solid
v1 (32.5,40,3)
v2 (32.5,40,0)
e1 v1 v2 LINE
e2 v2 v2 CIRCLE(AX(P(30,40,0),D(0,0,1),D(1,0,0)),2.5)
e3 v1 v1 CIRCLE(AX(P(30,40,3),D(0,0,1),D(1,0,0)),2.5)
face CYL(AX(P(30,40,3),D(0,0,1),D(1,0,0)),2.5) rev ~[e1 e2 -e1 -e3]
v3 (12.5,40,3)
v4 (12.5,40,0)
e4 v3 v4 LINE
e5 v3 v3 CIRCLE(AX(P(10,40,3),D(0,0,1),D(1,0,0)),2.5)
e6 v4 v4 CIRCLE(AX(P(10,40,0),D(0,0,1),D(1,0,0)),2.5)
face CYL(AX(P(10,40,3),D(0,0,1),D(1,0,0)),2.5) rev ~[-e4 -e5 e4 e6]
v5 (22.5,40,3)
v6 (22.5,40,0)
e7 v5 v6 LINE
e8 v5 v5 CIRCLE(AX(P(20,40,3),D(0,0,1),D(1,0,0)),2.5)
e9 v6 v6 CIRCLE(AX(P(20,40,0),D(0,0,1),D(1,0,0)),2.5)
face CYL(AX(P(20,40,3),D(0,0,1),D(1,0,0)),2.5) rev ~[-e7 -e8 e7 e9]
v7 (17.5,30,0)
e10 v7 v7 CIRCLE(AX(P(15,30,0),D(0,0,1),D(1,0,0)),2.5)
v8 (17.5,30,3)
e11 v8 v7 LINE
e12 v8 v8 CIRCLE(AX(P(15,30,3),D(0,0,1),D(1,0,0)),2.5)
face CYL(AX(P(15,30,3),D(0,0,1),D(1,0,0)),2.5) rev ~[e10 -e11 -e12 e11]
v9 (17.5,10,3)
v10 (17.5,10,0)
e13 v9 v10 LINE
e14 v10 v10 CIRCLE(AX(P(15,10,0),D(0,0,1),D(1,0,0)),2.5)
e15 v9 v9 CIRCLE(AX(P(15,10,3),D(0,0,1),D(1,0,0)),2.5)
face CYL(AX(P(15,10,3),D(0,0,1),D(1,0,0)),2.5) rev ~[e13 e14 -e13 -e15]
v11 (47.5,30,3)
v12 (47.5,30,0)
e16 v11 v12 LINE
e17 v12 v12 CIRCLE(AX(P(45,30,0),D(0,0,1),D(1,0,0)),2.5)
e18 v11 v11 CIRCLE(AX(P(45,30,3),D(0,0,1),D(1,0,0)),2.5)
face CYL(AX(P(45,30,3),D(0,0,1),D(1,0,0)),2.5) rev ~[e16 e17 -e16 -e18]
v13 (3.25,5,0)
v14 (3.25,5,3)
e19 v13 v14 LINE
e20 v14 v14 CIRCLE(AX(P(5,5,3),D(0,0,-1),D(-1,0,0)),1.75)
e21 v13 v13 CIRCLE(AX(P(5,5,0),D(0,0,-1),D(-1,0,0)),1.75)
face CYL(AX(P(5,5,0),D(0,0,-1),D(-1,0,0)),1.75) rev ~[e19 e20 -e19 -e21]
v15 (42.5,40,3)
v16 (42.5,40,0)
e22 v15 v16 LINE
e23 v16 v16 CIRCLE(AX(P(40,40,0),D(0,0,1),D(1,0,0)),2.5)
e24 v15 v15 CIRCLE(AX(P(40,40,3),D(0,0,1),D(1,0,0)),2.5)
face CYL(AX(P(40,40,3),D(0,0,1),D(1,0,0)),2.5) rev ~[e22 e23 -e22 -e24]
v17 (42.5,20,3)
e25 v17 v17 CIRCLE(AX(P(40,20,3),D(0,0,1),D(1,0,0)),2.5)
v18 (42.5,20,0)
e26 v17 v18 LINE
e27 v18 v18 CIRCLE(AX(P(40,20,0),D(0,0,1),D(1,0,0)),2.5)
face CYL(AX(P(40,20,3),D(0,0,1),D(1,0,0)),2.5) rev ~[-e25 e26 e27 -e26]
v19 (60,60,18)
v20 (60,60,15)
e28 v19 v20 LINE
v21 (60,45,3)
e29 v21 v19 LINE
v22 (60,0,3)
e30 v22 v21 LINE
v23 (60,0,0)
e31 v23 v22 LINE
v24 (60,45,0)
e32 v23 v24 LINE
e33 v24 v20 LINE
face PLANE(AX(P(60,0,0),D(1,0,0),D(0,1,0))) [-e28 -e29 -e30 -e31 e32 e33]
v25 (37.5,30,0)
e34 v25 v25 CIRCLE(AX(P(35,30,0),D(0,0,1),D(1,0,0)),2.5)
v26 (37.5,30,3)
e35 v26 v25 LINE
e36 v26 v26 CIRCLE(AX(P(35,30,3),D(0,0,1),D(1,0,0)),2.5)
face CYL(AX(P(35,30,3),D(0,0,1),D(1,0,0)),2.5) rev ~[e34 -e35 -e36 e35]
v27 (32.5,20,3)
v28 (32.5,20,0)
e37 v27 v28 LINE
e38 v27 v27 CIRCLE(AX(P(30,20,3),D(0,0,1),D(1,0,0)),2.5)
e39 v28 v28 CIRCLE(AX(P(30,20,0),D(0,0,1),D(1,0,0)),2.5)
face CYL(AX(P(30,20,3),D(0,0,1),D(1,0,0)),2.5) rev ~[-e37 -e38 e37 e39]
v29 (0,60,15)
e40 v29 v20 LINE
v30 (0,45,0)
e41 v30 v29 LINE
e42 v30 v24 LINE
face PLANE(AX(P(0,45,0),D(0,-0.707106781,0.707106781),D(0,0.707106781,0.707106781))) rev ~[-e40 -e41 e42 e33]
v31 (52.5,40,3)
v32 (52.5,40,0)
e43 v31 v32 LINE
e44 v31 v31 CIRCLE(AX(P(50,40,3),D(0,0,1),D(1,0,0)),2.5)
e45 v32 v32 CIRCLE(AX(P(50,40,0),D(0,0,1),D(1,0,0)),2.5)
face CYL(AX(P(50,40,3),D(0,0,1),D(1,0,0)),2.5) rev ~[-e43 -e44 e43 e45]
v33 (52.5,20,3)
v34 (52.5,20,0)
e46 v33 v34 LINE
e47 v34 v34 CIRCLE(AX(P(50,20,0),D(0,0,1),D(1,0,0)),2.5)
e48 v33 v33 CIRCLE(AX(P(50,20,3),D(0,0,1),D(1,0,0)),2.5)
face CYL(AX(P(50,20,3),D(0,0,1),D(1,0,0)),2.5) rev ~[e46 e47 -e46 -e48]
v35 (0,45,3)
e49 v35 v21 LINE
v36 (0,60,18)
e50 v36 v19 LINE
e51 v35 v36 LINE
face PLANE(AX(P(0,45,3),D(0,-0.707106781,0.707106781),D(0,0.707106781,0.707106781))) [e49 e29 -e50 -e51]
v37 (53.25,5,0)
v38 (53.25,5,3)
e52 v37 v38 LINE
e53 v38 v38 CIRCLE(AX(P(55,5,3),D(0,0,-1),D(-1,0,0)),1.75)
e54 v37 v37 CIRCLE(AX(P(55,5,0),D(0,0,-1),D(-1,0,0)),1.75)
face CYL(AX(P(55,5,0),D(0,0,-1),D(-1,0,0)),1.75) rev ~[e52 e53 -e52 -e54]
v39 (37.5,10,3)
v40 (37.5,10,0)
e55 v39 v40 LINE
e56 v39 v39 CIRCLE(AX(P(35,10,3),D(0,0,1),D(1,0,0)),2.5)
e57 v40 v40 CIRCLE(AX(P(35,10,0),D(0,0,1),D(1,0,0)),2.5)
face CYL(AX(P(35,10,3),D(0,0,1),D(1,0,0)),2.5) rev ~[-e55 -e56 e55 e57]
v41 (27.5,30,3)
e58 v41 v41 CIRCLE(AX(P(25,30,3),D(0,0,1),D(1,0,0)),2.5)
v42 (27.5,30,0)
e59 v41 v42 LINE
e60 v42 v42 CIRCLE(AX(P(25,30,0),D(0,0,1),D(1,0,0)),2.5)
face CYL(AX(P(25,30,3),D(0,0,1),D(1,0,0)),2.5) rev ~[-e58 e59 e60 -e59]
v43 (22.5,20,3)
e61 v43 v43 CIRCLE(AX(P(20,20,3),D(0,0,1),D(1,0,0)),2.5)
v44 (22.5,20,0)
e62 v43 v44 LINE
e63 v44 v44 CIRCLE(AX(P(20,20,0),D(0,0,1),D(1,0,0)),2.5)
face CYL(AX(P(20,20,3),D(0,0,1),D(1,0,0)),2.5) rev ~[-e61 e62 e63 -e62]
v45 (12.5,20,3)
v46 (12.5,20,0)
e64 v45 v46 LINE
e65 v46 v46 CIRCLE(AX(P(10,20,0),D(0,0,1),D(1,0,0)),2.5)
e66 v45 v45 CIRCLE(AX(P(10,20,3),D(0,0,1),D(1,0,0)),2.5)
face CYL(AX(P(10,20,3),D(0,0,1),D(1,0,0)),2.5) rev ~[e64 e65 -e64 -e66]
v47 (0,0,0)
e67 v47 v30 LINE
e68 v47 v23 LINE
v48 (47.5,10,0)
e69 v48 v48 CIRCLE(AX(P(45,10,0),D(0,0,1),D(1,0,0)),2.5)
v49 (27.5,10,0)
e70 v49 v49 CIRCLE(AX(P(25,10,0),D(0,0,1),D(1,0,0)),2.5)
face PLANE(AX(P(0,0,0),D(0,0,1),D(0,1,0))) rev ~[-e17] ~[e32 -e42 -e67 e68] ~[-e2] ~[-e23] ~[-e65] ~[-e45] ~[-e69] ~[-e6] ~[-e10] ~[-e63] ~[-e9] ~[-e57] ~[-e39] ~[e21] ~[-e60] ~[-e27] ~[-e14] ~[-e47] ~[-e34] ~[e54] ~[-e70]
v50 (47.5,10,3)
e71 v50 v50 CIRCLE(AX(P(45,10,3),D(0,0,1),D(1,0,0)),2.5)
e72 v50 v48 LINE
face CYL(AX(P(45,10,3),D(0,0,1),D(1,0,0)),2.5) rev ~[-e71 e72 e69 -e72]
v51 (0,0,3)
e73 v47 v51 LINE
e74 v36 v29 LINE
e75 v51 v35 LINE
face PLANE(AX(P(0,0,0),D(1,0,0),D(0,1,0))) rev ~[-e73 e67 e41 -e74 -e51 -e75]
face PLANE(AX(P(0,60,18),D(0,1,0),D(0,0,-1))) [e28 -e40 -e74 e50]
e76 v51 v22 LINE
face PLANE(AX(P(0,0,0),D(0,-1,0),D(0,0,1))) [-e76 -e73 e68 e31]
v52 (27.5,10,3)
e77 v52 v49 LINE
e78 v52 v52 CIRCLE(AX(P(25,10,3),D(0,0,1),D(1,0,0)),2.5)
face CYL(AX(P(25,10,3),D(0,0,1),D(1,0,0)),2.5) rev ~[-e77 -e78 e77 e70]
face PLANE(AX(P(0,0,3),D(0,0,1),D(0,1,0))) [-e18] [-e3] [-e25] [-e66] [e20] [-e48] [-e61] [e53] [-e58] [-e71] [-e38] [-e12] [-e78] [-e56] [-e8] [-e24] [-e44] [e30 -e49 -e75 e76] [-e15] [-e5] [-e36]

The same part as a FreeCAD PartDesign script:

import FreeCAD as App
import Part
import Sketcher
Q = App.Units.Quantity


def add_polygon(sketch, points):
    """Adds a closed chain of lines whose ends are joined by coincident constraints."""
    first, n = sketch.GeometryCount, len(points)
    for a, b in zip(points, points[1:] + points[:1]):
        sketch.addGeometry(Part.LineSegment(App.Vector(*a, 0), App.Vector(*b, 0)), False)
    for i in range(n):
        sketch.addConstraint(Sketcher.Constraint("Coincident", first + i, 2, first + (i + 1) % n, 1))

doc = App.newDocument("Part")
body = doc.addObject("PartDesign::Body", "Body")

# Sketch on YZ plane
sketch1 = doc.addObject("Sketcher::SketchObject", "Sketch")
body.addObject(sketch1)
sketch1.AttachmentSupport = (doc.YZ_Plane, [""])
sketch1.MapMode = "FlatFace"
add_polygon(sketch1, [(0, 3), (0, 0), (45, 0), (60, 15), (60, 18), (45, 3)])  # lines 0-5
sketch1.addConstraint([
    Sketcher.Constraint("Vertical", 0),
    Sketcher.Constraint("Horizontal", 1),
    Sketcher.Constraint("Vertical", 3),
    Sketcher.Constraint("Horizontal", 5),
    Sketcher.Constraint("Coincident", 0, 2, -1, 1),
    Sketcher.Constraint("Parallel", 2, 4),
    Sketcher.Constraint("Vertical", 1, 2, 4, 2),
    Sketcher.Constraint("DistanceX", 1, 1, 1, 2, Q("45 mm")),
    Sketcher.Constraint("DistanceY", 0, 2, 0, 1, Q("3 mm")),
    Sketcher.Constraint("Angle", 2, Q("45 deg")),
    Sketcher.Constraint("DistanceY", -1, 1, 2, 2, Q("15 mm")),
])
pad1 = doc.addObject("PartDesign::Pad", "Pad")
body.addObject(pad1)
pad1.Profile = sketch1
pad1.Length = 60

# Sketch on XY plane
sketch2 = doc.addObject("Sketcher::SketchObject", "Sketch001")
body.addObject(sketch2)
sketch2.AttachmentSupport = (doc.XY_Plane, [""])
sketch2.MapMode = "FlatFace"
sketch2.addGeometry([
    Part.Circle(App.Vector(55, 5, 0), App.Vector(0, 0, 1), 1.8),
    Part.Circle(App.Vector(5, 5, 0), App.Vector(0, 0, 1), 1.8),
], False)
sketch2.addConstraint([
    Sketcher.Constraint("Equal", 0, 1),
    Sketcher.Constraint("Horizontal", 0, 3, 1, 3),
    Sketcher.Constraint("Diameter", 0, Q("3.5 mm")),
    Sketcher.Constraint("DistanceY", -1, 1, 0, 3, Q("5 mm")),
    Sketcher.Constraint("DistanceX", -1, 1, 1, 3, Q("5 mm")),
    Sketcher.Constraint("DistanceX", 1, 3, 0, 3, Q("50 mm")),
])
pocket1 = doc.addObject("PartDesign::Pocket", "Pocket")
body.addObject(pocket1)
pocket1.Profile = sketch2
pocket1.Type = "ThroughAll"
pocket1.Reversed = True

# Sketch on XY plane
sketch3 = doc.addObject("Sketcher::SketchObject", "Sketch002")
body.addObject(sketch3)
sketch3.AttachmentSupport = (doc.XY_Plane, [""])
sketch3.MapMode = "FlatFace"
sketch3.AttachmentOffset = App.Placement(App.Vector(0, 0, 3), App.Rotation())
sketch3.addGeometry([
    Part.Circle(App.Vector(10, 40, 0), App.Vector(0, 0, 1), 2.5),  # 0
    Part.Circle(App.Vector(20, 40, 0), App.Vector(0, 0, 1), 2.5),  # 1
    Part.Circle(App.Vector(30, 40, 0), App.Vector(0, 0, 1), 2.5),  # 2
    Part.Circle(App.Vector(40, 40, 0), App.Vector(0, 0, 1), 2.5),  # 3
    Part.Circle(App.Vector(50, 40, 0), App.Vector(0, 0, 1), 2.5),  # 4
    Part.Circle(App.Vector(10, 20, 0), App.Vector(0, 0, 1), 2.5),  # 5
    Part.Circle(App.Vector(20, 20, 0), App.Vector(0, 0, 1), 2.5),  # 6
    Part.Circle(App.Vector(30, 20, 0), App.Vector(0, 0, 1), 2.5),  # 7
    Part.Circle(App.Vector(40, 20, 0), App.Vector(0, 0, 1), 2.5),  # 8
    Part.Circle(App.Vector(50, 20, 0), App.Vector(0, 0, 1), 2.5),  # 9
    Part.Circle(App.Vector(15, 30, 0), App.Vector(0, 0, 1), 2.5),  # 10
    Part.Circle(App.Vector(25, 30, 0), App.Vector(0, 0, 1), 2.5),  # 11
    Part.Circle(App.Vector(35, 30, 0), App.Vector(0, 0, 1), 2.5),  # 12
    Part.Circle(App.Vector(45, 30, 0), App.Vector(0, 0, 1), 2.5),  # 13
    Part.Circle(App.Vector(15, 10, 0), App.Vector(0, 0, 1), 2.5),  # 14
    Part.Circle(App.Vector(25, 10, 0), App.Vector(0, 0, 1), 2.5),  # 15
    Part.Circle(App.Vector(35, 10, 0), App.Vector(0, 0, 1), 2.5),  # 16
    Part.Circle(App.Vector(45, 10, 0), App.Vector(0, 0, 1), 2.5),  # 17
], False)
sketch3.addConstraint([
    Sketcher.Constraint("Equal", 0, 1),
    Sketcher.Constraint("Equal", 1, 2),
    Sketcher.Constraint("Equal", 2, 3),
    Sketcher.Constraint("Equal", 3, 4),
    Sketcher.Constraint("Equal", 4, 5),
    Sketcher.Constraint("Equal", 5, 6),
    Sketcher.Constraint("Equal", 6, 7),
    Sketcher.Constraint("Equal", 7, 8),
    Sketcher.Constraint("Equal", 8, 9),
    Sketcher.Constraint("Equal", 9, 10),
    Sketcher.Constraint("Equal", 10, 11),
    Sketcher.Constraint("Equal", 11, 12),
    Sketcher.Constraint("Equal", 12, 13),
    Sketcher.Constraint("Equal", 13, 14),
    Sketcher.Constraint("Equal", 14, 15),
    Sketcher.Constraint("Equal", 15, 16),
    Sketcher.Constraint("Equal", 16, 17),
    Sketcher.Constraint("Horizontal", 0, 3, 1, 3),
    Sketcher.Constraint("Horizontal", 1, 3, 2, 3),
    Sketcher.Constraint("Horizontal", 2, 3, 3, 3),
    Sketcher.Constraint("Horizontal", 3, 3, 4, 3),
    Sketcher.Constraint("Horizontal", 5, 3, 6, 3),
    Sketcher.Constraint("Horizontal", 6, 3, 7, 3),
    Sketcher.Constraint("Horizontal", 7, 3, 8, 3),
    Sketcher.Constraint("Horizontal", 8, 3, 9, 3),
    Sketcher.Constraint("Horizontal", 10, 3, 11, 3),
    Sketcher.Constraint("Horizontal", 11, 3, 12, 3),
    Sketcher.Constraint("Horizontal", 12, 3, 13, 3),
    Sketcher.Constraint("Horizontal", 14, 3, 15, 3),
    Sketcher.Constraint("Horizontal", 15, 3, 16, 3),
    Sketcher.Constraint("Horizontal", 16, 3, 17, 3),
    Sketcher.Constraint("Vertical", 0, 3, 5, 3),
    Sketcher.Constraint("Vertical", 1, 3, 6, 3),
    Sketcher.Constraint("Vertical", 2, 3, 7, 3),
    Sketcher.Constraint("Vertical", 3, 3, 8, 3),
    Sketcher.Constraint("Vertical", 4, 3, 9, 3),
    Sketcher.Constraint("Vertical", 10, 3, 14, 3),
    Sketcher.Constraint("Vertical", 11, 3, 15, 3),
    Sketcher.Constraint("Vertical", 12, 3, 16, 3),
    Sketcher.Constraint("Vertical", 13, 3, 17, 3),
    Sketcher.Constraint("Diameter", 0, Q("5 mm")),
    Sketcher.Constraint("DistanceX", -1, 1, 0, 3, Q("10 mm")),
    Sketcher.Constraint("DistanceX", -1, 1, 1, 3, Q("20 mm")),
    Sketcher.Constraint("DistanceY", -1, 1, 5, 3, Q("20 mm")),
    Sketcher.Constraint("DistanceY", -1, 1, 14, 3, Q("10 mm")),
    Sketcher.Constraint("DistanceX", 1, 3, 2, 3, Q("10 mm")),
    Sketcher.Constraint("DistanceX", 2, 3, 3, 3, Q("10 mm")),
    Sketcher.Constraint("DistanceX", 3, 3, 4, 3, Q("10 mm")),
    Sketcher.Constraint("DistanceY", 5, 3, 0, 3, Q("20 mm")),
    Sketcher.Constraint("DistanceX", 0, 3, 10, 3, Q("5 mm")),
    Sketcher.Constraint("DistanceY", 10, 3, 0, 3, Q("10 mm")),
    Sketcher.Constraint("DistanceX", 10, 3, 11, 3, Q("10 mm")),
    Sketcher.Constraint("DistanceX", 11, 3, 12, 3, Q("10 mm")),
    Sketcher.Constraint("DistanceX", 12, 3, 13, 3, Q("10 mm")),
])
pocket2 = doc.addObject("PartDesign::Pocket", "Pocket001")
body.addObject(pocket2)
pocket2.Profile = sketch3
pocket2.Type = "ThroughAll"

doc.recompute()
